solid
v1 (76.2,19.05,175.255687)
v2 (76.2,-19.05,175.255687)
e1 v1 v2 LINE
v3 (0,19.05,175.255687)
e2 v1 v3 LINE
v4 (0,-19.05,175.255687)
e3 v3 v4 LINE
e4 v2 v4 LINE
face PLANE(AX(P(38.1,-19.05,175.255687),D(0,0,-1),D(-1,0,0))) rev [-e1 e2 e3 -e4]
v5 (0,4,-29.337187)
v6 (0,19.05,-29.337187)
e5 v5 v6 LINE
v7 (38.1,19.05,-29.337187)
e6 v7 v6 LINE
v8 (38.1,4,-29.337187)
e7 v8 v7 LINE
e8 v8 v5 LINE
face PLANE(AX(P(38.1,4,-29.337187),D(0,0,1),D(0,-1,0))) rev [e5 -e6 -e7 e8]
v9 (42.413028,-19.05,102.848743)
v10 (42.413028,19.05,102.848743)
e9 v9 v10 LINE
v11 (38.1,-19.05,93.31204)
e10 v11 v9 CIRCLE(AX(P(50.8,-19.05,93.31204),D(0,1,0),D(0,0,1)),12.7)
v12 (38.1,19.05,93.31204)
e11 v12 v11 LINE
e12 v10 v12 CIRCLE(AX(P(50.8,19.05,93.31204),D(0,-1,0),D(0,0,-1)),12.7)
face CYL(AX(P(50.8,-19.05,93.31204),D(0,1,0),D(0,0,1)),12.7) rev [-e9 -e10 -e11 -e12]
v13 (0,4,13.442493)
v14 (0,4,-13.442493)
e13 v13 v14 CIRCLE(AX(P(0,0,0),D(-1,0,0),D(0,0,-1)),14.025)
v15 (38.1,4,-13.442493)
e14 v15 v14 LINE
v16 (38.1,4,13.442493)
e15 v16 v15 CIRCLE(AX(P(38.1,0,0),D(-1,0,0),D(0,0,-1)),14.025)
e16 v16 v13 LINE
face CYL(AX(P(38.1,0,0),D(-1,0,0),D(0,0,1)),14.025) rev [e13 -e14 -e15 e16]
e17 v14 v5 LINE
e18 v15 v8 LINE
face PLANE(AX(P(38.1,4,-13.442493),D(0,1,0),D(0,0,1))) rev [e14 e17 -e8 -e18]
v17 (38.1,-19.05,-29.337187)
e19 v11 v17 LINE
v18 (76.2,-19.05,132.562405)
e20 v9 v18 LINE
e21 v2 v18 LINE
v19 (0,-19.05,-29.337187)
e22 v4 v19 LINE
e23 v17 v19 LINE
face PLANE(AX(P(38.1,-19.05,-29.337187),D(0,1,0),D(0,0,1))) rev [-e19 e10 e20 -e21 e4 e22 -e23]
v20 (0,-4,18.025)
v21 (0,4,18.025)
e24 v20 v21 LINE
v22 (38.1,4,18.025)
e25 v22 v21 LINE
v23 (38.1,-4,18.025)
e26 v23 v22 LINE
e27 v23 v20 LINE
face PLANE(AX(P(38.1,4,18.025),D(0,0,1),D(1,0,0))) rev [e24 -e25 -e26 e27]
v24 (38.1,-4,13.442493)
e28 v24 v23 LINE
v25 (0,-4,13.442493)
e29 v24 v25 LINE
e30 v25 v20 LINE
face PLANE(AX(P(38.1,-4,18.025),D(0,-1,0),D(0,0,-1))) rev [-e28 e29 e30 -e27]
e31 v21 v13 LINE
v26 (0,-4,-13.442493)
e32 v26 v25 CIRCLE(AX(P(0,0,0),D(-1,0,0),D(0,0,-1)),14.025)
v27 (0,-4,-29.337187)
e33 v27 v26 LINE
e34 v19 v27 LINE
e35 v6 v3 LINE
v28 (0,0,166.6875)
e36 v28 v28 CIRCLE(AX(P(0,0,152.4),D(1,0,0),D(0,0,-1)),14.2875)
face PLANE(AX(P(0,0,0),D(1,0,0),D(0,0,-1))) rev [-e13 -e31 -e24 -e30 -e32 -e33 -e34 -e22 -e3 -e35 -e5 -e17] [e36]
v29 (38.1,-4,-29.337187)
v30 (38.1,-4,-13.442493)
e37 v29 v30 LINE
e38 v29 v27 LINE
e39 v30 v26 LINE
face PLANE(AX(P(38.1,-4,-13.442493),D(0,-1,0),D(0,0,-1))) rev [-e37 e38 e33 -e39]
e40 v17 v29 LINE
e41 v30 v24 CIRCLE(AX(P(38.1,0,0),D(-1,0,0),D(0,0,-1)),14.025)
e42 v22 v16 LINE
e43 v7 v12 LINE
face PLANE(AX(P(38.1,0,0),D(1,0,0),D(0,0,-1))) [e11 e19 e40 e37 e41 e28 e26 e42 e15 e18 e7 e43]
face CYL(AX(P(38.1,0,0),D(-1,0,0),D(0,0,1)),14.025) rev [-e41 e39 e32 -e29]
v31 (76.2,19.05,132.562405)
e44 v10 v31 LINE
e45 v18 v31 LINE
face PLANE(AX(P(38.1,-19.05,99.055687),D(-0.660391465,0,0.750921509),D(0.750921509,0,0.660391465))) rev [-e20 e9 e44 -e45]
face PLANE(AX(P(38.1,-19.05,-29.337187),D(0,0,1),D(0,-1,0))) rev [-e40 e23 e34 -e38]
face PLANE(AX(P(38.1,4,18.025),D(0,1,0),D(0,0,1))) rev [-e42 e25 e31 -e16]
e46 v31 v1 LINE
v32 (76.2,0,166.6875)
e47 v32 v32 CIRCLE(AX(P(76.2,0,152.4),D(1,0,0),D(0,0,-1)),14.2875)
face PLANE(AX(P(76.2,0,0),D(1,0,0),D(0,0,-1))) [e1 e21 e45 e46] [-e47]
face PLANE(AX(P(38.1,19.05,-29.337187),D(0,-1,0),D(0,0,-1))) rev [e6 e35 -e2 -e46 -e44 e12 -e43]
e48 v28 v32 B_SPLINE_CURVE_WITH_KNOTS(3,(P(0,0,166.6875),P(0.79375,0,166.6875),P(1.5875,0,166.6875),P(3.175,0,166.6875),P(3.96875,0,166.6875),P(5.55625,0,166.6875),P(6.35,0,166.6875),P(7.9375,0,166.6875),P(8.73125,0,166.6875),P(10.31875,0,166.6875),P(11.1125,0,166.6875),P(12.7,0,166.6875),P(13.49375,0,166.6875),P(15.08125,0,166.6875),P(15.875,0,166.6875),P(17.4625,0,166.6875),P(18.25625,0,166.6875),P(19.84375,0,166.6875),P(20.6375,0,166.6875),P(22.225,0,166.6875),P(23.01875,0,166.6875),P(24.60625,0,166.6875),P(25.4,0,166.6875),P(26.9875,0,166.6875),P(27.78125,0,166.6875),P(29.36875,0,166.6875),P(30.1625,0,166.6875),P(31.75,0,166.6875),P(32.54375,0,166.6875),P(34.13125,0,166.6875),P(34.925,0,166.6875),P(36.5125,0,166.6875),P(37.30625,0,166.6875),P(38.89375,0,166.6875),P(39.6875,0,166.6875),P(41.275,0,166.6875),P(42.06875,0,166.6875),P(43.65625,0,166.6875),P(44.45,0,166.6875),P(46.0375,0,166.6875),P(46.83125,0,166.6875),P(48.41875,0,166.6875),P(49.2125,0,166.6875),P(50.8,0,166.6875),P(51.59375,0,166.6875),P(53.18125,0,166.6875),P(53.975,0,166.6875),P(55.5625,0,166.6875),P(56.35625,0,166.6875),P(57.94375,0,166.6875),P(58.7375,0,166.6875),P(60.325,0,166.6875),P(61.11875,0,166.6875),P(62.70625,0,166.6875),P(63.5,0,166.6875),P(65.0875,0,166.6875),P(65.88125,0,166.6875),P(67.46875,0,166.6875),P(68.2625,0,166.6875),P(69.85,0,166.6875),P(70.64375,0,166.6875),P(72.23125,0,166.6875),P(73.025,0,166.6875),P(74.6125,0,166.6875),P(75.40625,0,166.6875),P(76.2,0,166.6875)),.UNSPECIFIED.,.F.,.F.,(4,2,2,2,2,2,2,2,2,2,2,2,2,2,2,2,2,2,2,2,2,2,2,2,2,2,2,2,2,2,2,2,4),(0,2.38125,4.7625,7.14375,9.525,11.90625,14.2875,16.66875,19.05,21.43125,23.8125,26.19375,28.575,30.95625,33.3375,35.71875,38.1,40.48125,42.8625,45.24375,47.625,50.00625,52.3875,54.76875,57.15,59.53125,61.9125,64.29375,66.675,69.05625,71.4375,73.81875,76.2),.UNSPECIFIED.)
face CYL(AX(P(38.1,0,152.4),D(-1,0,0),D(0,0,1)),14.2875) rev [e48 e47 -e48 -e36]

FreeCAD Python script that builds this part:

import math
import FreeCAD as App
import Part
import Sketcher

V = App.Vector
Q = App.Units.Quantity


def edges_at(feature, points):
    """Names of the edges that pass closest to the given points."""
    edges = feature.Shape.Edges
    near = lambda p: min(range(len(edges)), key=lambda i: edges[i].distToShape(Part.Vertex(*p))[0])
    return sorted({f"Edge{near(p) + 1}" for p in points})


def add_polygon(sketch, points):
    """Adds a closed chain of lines whose ends are joined by coincident constraints."""
    first, n = sketch.GeometryCount, len(points)
    for a, b in zip(points, points[1:] + points[:1]):
        sketch.addGeometry(Part.LineSegment(App.Vector(*a, 0), App.Vector(*b, 0)), False)
    for i in range(n):
        sketch.addConstraint(Sketcher.Constraint("Coincident", first + i, 2, first + (i + 1) % n, 1))

doc = App.newDocument("Part")
body = doc.addObject("PartDesign::Body", "Body")

# Sketch on YZ plane
sketch1 = body.newObject("Sketcher::SketchObject", "Sketch")
sketch1.AttachmentSupport = (doc.getObject("YZ_Plane"), [""])
sketch1.MapMode = "FlatFace"
sketch1.addGeometry([
    Part.LineSegment(V(-19.05, 175.255687, 0), V(-19.05, -29.337187, 0)),  # 0
    Part.LineSegment(V(-19.05, -29.337187, 0), V(-4, -29.337187, 0)),  # 1
    Part.LineSegment(V(-4, -29.337187, 0), V(-4, -13.442493, 0)),  # 2
    Part.ArcOfCircle(Part.Circle(V(0, 0, 0), V(0, 0, 1), 14.025), math.radians(106.571102), math.radians(253.428898)),  # 3
    Part.LineSegment(V(-4, 13.442493, 0), V(-4, 18.025, 0)),  # 4
    Part.LineSegment(V(-4, 18.025, 0), V(4, 18.025, 0)),  # 5
    Part.LineSegment(V(4, 18.025, 0), V(4, 13.442493, 0)),  # 6
    Part.ArcOfCircle(Part.Circle(V(0, 0, 0), V(0, 0, 1), 14.025), math.radians(-73.428898), math.radians(73.428898)),  # 7
    Part.LineSegment(V(4, -13.442493, 0), V(4, -29.337187, 0)),  # 8
    Part.LineSegment(V(4, -29.337187, 0), V(19.05, -29.337187, 0)),  # 9
    Part.LineSegment(V(19.05, -29.337187, 0), V(19.05, 175.255687, 0)),  # 10
    Part.LineSegment(V(19.05, 175.255687, 0), V(-19.05, 175.255687, 0)),  # 11
    Part.Circle(V(0, 152.4, 0), V(0, 0, 1), 14.2875),  # 12
], False)
sketch1.addConstraint([
    Sketcher.Constraint("Coincident", 0, 2, 1, 1),
    Sketcher.Constraint("Coincident", 1, 2, 2, 1),
    Sketcher.Constraint("Coincident", 2, 2, 3, 2),
    Sketcher.Constraint("Coincident", 3, 1, 4, 1),
    Sketcher.Constraint("Coincident", 4, 2, 5, 1),
    Sketcher.Constraint("Coincident", 5, 2, 6, 1),
    Sketcher.Constraint("Coincident", 6, 2, 7, 2),
    Sketcher.Constraint("Coincident", 7, 1, 8, 1),
    Sketcher.Constraint("Coincident", 8, 2, 9, 1),
    Sketcher.Constraint("Coincident", 9, 2, 10, 1),
    Sketcher.Constraint("Coincident", 10, 2, 11, 1),
    Sketcher.Constraint("Coincident", 11, 2, 0, 1),
    Sketcher.Constraint("Vertical", 0),
    Sketcher.Constraint("Horizontal", 1),
    Sketcher.Constraint("Vertical", 2),
    Sketcher.Constraint("Vertical", 4),
    Sketcher.Constraint("Horizontal", 5),
    Sketcher.Constraint("Vertical", 6),
    Sketcher.Constraint("Vertical", 8),
    Sketcher.Constraint("Horizontal", 9),
    Sketcher.Constraint("Vertical", 10),
    Sketcher.Constraint("Horizontal", 11),
    Sketcher.Constraint("Coincident", 3, 3, -1, 1),
    Sketcher.Constraint("Coincident", 7, 3, -1, 1),
    Sketcher.Constraint("Equal", 3, 7),
    Sketcher.Constraint("Symmetric", 1, 2, 8, 2, -2),
    Sketcher.Constraint("PointOnObject", 12, 3, -2),
    Sketcher.Constraint("Horizontal", 3, 1, 6, 2),
    Sketcher.Constraint("Vertical", 2, 2, 3, 1),
    Sketcher.Constraint("Equal", 1, 9),
    Sketcher.Constraint("Diameter", 12, Q("1.125 in")),
    Sketcher.Constraint("DistanceX", 11, 2, 11, 1, Q("1.5 in")),
    Sketcher.Constraint("DistanceY", -1, 1, 12, 3, Q("6 in")),
    Sketcher.Constraint("Radius", 3, Q("14.025 mm")),
    Sketcher.Constraint("DistanceX", 1, 1, 1, 2, Q("15.05 mm")),
    Sketcher.Constraint("DistanceY", -1, 1, 4, 2, Q("18.025 mm")),
    Sketcher.Constraint("DistanceY", 0, 2, 0, 1, Q("204.592874 mm")),
    Sketcher.Constraint("DistanceY", 2, 1, 2, 2, Q("15.894693 mm")),
])
pad1 = body.newObject("PartDesign::Pad", "Pad")
pad1.Profile = sketch1
pad1.Length = Q("1.5 in")

# Sketch on YZ plane
sketch2 = body.newObject("Sketcher::SketchObject", "Sketch001")
sketch2.AttachmentSupport = (doc.getObject("YZ_Plane"), [""])
sketch2.MapMode = "FlatFace"
sketch2.AttachmentOffset = App.Placement(V(0, 0, 1.5 * 25.4), App.Rotation())
add_polygon(sketch2, [(19.05, 175.255687), (-19.05, 175.255687), (-19.05, 99.055687), (19.05, 99.055687)])  # lines 0-3
sketch2.addGeometry(Part.Circle(V(0, 152.4, 0), V(0, 0, 1), 14.2875), False)  # 4
sketch2.addConstraint([
    Sketcher.Constraint("Horizontal", 0),
    Sketcher.Constraint("Vertical", 1),
    Sketcher.Constraint("Horizontal", 2),
    Sketcher.Constraint("Vertical", 3),
    Sketcher.Constraint("PointOnObject", 4, 3, -2),
    Sketcher.Constraint("DistanceY", 1, 2, 1, 1, Q("3 in")),
    Sketcher.Constraint("Diameter", 4, Q("1.125 in")),
    Sketcher.Constraint("DistanceX", 0, 2, 0, 1, Q("1.5 in")),
    Sketcher.Constraint("DistanceY", -1, 1, 4, 3, Q("6 in")),
    Sketcher.Constraint("DistanceX", 0, 2, -1, 1, Q("0.75 in")),
    Sketcher.Constraint("DistanceY", -1, 1, 0, 2, Q("175.255687 mm")),
])
pad2 = body.newObject("PartDesign::Pad", "Pad001")
pad2.Profile = sketch2
pad2.Length = Q("1.5 in")

# Sketch on XZ plane
sketch3 = body.newObject("Sketcher::SketchObject", "Sketch002")
sketch3.AttachmentSupport = (doc.getObject("XZ_Plane"), [""])
sketch3.MapMode = "FlatFace"
sketch3.AttachmentOffset = App.Placement(V(0, 0, -0.75 * 25.4), App.Rotation())
add_polygon(sketch3, [(38.1, 99.055687), (76.2, 132.562405), (94.277322, 84.449228)])  # lines 0-2
sketch3.addConstraint([
    Sketcher.Constraint("DistanceX", -1, 1, 0, 2, Q("3 in")),
    Sketcher.Constraint("DistanceX", -1, 1, 2, 2, Q("1.5 in")),
    Sketcher.Constraint("Distance", 0, Q("50.73766 mm")),
    Sketcher.Constraint("DistanceX", -1, 1, 1, 2, Q("94.277322 mm")),
    Sketcher.Constraint("DistanceY", 1, 2, 2, 2, Q("14.606459 mm")),
    Sketcher.Constraint("DistanceY", -1, 1, 0, 2, Q("132.562405 mm")),
])
pocket1 = body.newObject("PartDesign::Pocket", "Pocket")
pocket1.Profile = sketch3
pocket1.Length = Q("1.5 in")
pocket1.Reversed = True
doc.recompute()

fillet = body.newObject("PartDesign::Fillet", "Fillet")
fillet.Base = (pocket1, edges_at(pocket1, [(38.1, 0, 99.056)]))
fillet.Radius = Q("0.5 in")

doc.recompute()
